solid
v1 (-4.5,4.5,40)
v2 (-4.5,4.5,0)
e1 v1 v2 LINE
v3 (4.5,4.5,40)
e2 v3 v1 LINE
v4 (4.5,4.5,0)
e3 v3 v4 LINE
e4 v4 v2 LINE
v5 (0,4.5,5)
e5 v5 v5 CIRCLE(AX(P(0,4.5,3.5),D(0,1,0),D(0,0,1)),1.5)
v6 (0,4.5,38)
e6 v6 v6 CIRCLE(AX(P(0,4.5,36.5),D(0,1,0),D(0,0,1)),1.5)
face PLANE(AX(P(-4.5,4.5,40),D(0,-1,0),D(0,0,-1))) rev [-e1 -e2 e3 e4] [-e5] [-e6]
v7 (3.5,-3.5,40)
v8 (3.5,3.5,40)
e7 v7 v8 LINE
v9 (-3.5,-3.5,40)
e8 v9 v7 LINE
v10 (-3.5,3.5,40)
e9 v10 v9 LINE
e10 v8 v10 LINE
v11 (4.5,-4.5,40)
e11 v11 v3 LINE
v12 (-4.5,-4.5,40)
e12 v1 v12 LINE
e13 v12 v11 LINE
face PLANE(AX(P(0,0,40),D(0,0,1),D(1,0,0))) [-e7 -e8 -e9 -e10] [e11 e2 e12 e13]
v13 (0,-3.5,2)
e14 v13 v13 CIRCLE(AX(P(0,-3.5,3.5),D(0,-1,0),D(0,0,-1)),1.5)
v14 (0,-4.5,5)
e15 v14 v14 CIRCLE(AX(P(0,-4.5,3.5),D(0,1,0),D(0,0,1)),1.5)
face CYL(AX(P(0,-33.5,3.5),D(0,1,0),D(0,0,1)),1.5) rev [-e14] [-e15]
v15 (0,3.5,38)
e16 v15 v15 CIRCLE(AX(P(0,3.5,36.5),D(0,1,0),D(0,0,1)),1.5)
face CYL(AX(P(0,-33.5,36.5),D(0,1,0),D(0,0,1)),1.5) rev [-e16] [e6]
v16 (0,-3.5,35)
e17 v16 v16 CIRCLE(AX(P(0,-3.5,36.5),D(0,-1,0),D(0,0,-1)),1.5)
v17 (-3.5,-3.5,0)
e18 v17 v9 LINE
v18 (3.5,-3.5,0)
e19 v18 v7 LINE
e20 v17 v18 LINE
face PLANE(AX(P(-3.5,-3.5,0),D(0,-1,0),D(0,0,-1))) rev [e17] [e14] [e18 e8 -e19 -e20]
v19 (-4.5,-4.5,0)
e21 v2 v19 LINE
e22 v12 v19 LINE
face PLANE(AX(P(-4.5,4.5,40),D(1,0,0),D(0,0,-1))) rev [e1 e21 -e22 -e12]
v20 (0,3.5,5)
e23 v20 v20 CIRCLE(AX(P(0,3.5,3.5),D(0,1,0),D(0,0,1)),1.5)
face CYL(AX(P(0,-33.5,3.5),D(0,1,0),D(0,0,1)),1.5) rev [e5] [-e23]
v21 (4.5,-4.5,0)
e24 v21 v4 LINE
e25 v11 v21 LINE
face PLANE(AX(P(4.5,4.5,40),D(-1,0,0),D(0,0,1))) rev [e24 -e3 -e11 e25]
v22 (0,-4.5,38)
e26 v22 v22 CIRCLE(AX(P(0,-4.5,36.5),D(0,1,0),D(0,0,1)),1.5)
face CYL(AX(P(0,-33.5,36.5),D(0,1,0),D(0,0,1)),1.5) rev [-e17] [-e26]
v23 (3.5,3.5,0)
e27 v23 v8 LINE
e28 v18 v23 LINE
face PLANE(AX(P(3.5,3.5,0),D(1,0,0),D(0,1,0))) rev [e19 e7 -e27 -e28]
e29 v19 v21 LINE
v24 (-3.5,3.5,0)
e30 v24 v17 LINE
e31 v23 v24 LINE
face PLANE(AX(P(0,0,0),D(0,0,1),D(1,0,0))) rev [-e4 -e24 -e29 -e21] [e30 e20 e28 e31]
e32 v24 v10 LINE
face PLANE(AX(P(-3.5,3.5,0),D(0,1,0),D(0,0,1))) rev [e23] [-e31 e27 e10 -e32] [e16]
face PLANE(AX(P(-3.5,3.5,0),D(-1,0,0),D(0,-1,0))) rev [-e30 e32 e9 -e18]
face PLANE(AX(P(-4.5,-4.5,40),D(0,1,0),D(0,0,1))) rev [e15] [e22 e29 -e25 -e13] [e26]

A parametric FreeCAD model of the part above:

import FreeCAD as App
import Part
import Sketcher
from FreeCAD import Vector

doc = App.newDocument("Part")
params = doc.addObject("Spreadsheet::Sheet", "Params")
for row, (alias, value) in enumerate([
    ("sketch1_width", "9 mm"),
    ("pad1_length", "40 mm"),
    ("sketch2_width", "7 mm"),
    ("pocket1_length", "40 mm"),
    ("sketch3_diameter", "3 mm"),
    ("pocket2_length", "38 mm"),
], start=1):
    params.set(f"A{row}", alias)
    params.set(f"B{row}", "=" + value)
    params.setAlias(f"B{row}", alias)

body = doc.addObject("PartDesign::Body", "Body")

# Sketch on XY plane
sketch1 = doc.addObject("Sketcher::SketchObject", "Sketch")
body.addObject(sketch1)
sketch1.AttachmentSupport = (doc.XY_Plane, [""])
sketch1.MapMode = "FlatFace"
sketch1.addGeometry([
    Part.LineSegment(Vector(-4, 4, 0), Vector(-4, -4, 0)),
    Part.LineSegment(Vector(-4, -4, 0), Vector(4, -4, 0)),
    Part.LineSegment(Vector(4, -4, 0), Vector(4, 4, 0)),
    Part.LineSegment(Vector(4, 4, 0), Vector(-4, 4, 0)),
], False)
sketch1.addConstraint([
    Sketcher.Constraint("Coincident", 0, 2, 1, 1),
    Sketcher.Constraint("Coincident", 1, 2, 2, 1),
    Sketcher.Constraint("Coincident", 2, 2, 3, 1),
    Sketcher.Constraint("Coincident", 3, 2, 0, 1),
    Sketcher.Constraint("Vertical", 0),
    Sketcher.Constraint("Horizontal", 1),
    Sketcher.Constraint("Vertical", 2),
    Sketcher.Constraint("Horizontal", 3),
    Sketcher.Constraint("Symmetric", 0, 2, 2, 2, -1, 1),
    Sketcher.Constraint("Equal", 3, 0),
    Sketcher.Constraint("DistanceX", 1, 1, 1, 2, 9.0),
])
sketch1.setExpression("Constraints[10]", "Params.sketch1_width")
pad1 = doc.addObject("PartDesign::Pad", "Pad")
body.addObject(pad1)
pad1.Profile = sketch1
pad1.setExpression("Length", "Params.pad1_length")

# Sketch on XY plane
sketch2 = doc.addObject("Sketcher::SketchObject", "Sketch001")
body.addObject(sketch2)
sketch2.AttachmentSupport = (doc.XY_Plane, [""])
sketch2.MapMode = "FlatFace"
sketch2.AttachmentOffset = App.Placement(Vector(0, 0, 40), App.Rotation())
sketch2.addGeometry([
    Part.LineSegment(Vector(-4, 4, 0), Vector(-4, -4, 0)),
    Part.LineSegment(Vector(-4, -4, 0), Vector(4, -4, 0)),
    Part.LineSegment(Vector(4, -4, 0), Vector(4, 4, 0)),
    Part.LineSegment(Vector(4, 4, 0), Vector(-4, 4, 0)),
], False)
sketch2.addConstraint([
    Sketcher.Constraint("Coincident", 0, 2, 1, 1),
    Sketcher.Constraint("Coincident", 1, 2, 2, 1),
    Sketcher.Constraint("Coincident", 2, 2, 3, 1),
    Sketcher.Constraint("Coincident", 3, 2, 0, 1),
    Sketcher.Constraint("Vertical", 0),
    Sketcher.Constraint("Horizontal", 1),
    Sketcher.Constraint("Vertical", 2),
    Sketcher.Constraint("Horizontal", 3),
    Sketcher.Constraint("Symmetric", 0, 2, 2, 2, -1, 1),
    Sketcher.Constraint("Equal", 3, 0),
    Sketcher.Constraint("DistanceX", 1, 1, 1, 2, 7.0),
])
sketch2.setExpression("Constraints[10]", "Params.sketch2_width")
pocket1 = doc.addObject("PartDesign::Pocket", "Pocket")
body.addObject(pocket1)
pocket1.Profile = sketch2
pocket1.setExpression("Length", "Params.pocket1_length")

# Sketch on XZ plane
sketch3 = doc.addObject("Sketcher::SketchObject", "Sketch002")
body.addObject(sketch3)
sketch3.AttachmentSupport = (doc.XZ_Plane, [""])
sketch3.MapMode = "FlatFace"
sketch3.AttachmentOffset = App.Placement(Vector(0, 0, -4.5), App.Rotation())
sketch3.addGeometry([
    Part.Circle(Vector(0, 3.5, 0), Vector(0, 0, 1), 1.5),
    Part.Circle(Vector(0, 36.5, 0), Vector(0, 0, 1), 1.5),
], False)
sketch3.addConstraint([
    Sketcher.Constraint("Equal", 0, 1),
    Sketcher.Constraint("PointOnObject", 0, 3, -2),
    Sketcher.Constraint("PointOnObject", 1, 3, -2),
    Sketcher.Constraint("Diameter", 0, 3.0),
    Sketcher.Constraint("DistanceY", 0, 3, 1, 3, 33.0),
    Sketcher.Constraint("DistanceY", -1, 1, 0, 3, 3.5),
])
sketch3.setExpression("Constraints[3]", "Params.sketch3_diameter")
pocket2 = doc.addObject("PartDesign::Pocket", "Pocket001")
body.addObject(pocket2)
pocket2.Profile = sketch3
pocket2.setExpression("Length", "Params.pocket2_length")
pocket2.Reversed = True

doc.recompute()
